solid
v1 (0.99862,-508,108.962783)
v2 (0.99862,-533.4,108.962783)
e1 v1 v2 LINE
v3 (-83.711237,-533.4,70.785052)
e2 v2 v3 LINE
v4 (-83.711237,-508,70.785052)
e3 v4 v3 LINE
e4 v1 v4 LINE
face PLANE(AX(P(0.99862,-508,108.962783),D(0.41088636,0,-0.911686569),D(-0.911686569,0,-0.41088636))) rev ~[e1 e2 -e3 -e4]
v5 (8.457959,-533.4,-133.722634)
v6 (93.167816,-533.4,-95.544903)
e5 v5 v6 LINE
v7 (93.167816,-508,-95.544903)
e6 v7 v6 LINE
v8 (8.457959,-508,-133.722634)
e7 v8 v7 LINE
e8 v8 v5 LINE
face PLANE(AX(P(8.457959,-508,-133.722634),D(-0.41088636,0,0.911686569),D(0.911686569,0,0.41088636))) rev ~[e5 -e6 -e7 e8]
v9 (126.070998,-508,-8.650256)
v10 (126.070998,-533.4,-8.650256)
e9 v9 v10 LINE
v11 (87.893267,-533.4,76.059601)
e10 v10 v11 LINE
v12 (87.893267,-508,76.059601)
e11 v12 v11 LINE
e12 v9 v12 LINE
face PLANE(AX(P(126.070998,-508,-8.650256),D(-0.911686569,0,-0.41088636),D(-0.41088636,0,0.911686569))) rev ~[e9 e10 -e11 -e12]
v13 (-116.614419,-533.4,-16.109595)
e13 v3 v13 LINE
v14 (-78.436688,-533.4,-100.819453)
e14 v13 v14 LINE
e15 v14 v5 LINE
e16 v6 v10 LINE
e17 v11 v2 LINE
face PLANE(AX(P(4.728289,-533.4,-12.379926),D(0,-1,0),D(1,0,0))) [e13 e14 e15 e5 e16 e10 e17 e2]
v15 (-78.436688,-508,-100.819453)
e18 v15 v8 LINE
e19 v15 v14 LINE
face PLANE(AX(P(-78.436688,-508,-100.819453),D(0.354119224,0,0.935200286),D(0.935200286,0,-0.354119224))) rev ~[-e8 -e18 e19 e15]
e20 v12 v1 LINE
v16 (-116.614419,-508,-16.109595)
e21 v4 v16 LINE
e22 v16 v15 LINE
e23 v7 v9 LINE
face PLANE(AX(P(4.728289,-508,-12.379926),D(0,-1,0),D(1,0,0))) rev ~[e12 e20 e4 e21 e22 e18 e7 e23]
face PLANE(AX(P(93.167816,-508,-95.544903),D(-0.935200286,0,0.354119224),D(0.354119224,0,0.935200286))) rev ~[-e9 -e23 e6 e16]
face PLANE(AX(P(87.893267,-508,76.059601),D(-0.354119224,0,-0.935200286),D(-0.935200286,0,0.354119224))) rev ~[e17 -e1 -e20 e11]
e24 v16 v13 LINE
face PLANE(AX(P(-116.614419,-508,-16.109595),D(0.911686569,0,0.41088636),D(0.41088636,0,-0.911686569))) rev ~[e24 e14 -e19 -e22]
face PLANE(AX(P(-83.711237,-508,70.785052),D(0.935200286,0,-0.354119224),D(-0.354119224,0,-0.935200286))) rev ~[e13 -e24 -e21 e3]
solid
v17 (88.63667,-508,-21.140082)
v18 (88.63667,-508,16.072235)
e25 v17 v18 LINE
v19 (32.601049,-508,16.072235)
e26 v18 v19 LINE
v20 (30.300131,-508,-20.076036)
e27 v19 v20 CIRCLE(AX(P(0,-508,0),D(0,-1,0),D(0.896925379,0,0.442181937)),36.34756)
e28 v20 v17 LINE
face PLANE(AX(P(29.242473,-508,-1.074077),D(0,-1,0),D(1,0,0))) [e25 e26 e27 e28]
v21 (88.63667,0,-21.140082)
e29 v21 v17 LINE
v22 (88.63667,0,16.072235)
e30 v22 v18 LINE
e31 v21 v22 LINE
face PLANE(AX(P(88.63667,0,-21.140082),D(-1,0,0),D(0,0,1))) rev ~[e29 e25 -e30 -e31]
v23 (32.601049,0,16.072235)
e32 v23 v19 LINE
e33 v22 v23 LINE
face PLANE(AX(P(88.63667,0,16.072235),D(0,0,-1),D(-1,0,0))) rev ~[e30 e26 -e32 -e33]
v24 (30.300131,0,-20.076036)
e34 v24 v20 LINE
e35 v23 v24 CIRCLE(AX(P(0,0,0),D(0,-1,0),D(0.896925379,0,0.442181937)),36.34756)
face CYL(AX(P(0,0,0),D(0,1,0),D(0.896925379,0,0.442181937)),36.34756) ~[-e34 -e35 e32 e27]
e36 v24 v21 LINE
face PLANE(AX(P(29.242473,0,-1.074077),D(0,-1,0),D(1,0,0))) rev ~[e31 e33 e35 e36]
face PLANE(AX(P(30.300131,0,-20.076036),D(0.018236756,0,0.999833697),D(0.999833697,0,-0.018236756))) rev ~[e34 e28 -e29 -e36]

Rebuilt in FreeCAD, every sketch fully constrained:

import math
import FreeCAD as App
import Part
import Sketcher
Q = App.Units.Quantity

doc = App.newDocument("Part")
body = doc.addObject("PartDesign::Body", "Body")

sketch1 = body.newObject("Sketcher::SketchObject", "Sketch")
sketch1.AttachmentSupport = (doc.getObject("XZ_Plane"), [""])
sketch1.MapMode = "FlatFace"
sketch1.addGeometry([
    Part.LineSegment(App.Vector(89, 16, 0), App.Vector(33, 16, 0)),
    Part.ArcOfCircle(Part.Circle(App.Vector(0, 0, 0), App.Vector(0, 0, 1), 36), math.radians(26), math.radians(326)),
    Part.LineSegment(App.Vector(30, -20, 0), App.Vector(89, -21, 0)),
    Part.LineSegment(App.Vector(89, -21, 0), App.Vector(89, 16, 0)),
], False)
sketch1.addConstraint([
    Sketcher.Constraint("Coincident", 0, 2, 1, 1),
    Sketcher.Constraint("Coincident", 1, 2, 2, 1),
    Sketcher.Constraint("Coincident", 2, 2, 3, 1),
    Sketcher.Constraint("Coincident", 3, 2, 0, 1),
    Sketcher.Constraint("Horizontal", 0),
    Sketcher.Constraint("Vertical", 3),
    Sketcher.Constraint("Coincident", 1, 3, -1, 1),
    Sketcher.Constraint("Radius", 1, Q("36.34756 mm")),
    Sketcher.Constraint("DistanceX", 0, 2, 0, 1, Q("56.035621 mm")),
    Sketcher.Constraint("DistanceY", 3, 1, 3, 2, Q("37.212316 mm")),
    Sketcher.Constraint("DistanceX", -1, 1, 0, 2, Q("32.601049 mm")),
    Sketcher.Constraint("DistanceX", -1, 1, 1, 2, Q("30.300131 mm")),
])
pad1 = body.newObject("PartDesign::Pad", "Pad")
pad1.Profile = sketch1
pad1.Length = Q("20 in")
body2 = doc.addObject("PartDesign::Body", "Body001")

sketch2 = body2.newObject("Sketcher::SketchObject", "Sketch001")
sketch2.AttachmentSupport = (doc.getObject("XZ_Plane001"), [""])
sketch2.MapMode = "FlatFace"
sketch2.AttachmentOffset = App.Placement(App.Vector(0, 0, 20 * 25.4), App.Rotation())
sketch2.addGeometry([
    Part.LineSegment(App.Vector(-78, -101, 0), App.Vector(8, -134, 0)),
    Part.LineSegment(App.Vector(8, -134, 0), App.Vector(93, -96, 0)),
    Part.LineSegment(App.Vector(93, -96, 0), App.Vector(126, -9, 0)),
    Part.LineSegment(App.Vector(126, -9, 0), App.Vector(88, 76, 0)),
    Part.LineSegment(App.Vector(88, 76, 0), App.Vector(1, 109, 0)),
    Part.LineSegment(App.Vector(1, 109, 0), App.Vector(-84, 71, 0)),
    Part.LineSegment(App.Vector(-84, 71, 0), App.Vector(-117, -16, 0)),
    Part.LineSegment(App.Vector(-117, -16, 0), App.Vector(-78, -101, 0)),
], False)
sketch2.addConstraint([
    Sketcher.Constraint("Coincident", 0, 2, 1, 1),
    Sketcher.Constraint("Coincident", 1, 2, 2, 1),
    Sketcher.Constraint("Coincident", 2, 2, 3, 1),
    Sketcher.Constraint("Coincident", 3, 2, 4, 1),
    Sketcher.Constraint("Coincident", 4, 2, 5, 1),
    Sketcher.Constraint("Coincident", 5, 2, 6, 1),
    Sketcher.Constraint("Coincident", 6, 2, 7, 1),
    Sketcher.Constraint("Coincident", 7, 2, 0, 1),
    Sketcher.Constraint("Perpendicular", 0, 2),
    Sketcher.Constraint("Perpendicular", 1, 3),
    Sketcher.Constraint("Perpendicular", 2, 4),
    Sketcher.Constraint("Perpendicular", 3, 5),
    Sketcher.Constraint("Perpendicular", 4, 6),
    Sketcher.Constraint("Perpendicular", 5, 7),
    Sketcher.Constraint("Equal", 0, 1),
    Sketcher.Constraint("Equal", 1, 2),
    Sketcher.Constraint("Equal", 2, 3),
    Sketcher.Constraint("Equal", 3, 4),
    Sketcher.Constraint("Equal", 4, 5),
    Sketcher.Constraint("DistanceY", -1, 1, 3, 2, Q("76.059601 mm")),
    Sketcher.Constraint("DistanceX", -1, 1, 0, 2, Q("8.457959 mm")),
    Sketcher.Constraint("DistanceX", -1, 1, 4, 2, Q("0.99862 mm")),
    Sketcher.Constraint("DistanceY", -1, 1, 5, 2, Q("70.785052 mm")),
    Sketcher.Constraint("DistanceX", 6, 2, -1, 1, Q("116.614419 mm")),
])
pad2 = body2.newObject("PartDesign::Pad", "Pad001")
pad2.Profile = sketch2
pad2.Length = Q("1 in")

doc.recompute()
